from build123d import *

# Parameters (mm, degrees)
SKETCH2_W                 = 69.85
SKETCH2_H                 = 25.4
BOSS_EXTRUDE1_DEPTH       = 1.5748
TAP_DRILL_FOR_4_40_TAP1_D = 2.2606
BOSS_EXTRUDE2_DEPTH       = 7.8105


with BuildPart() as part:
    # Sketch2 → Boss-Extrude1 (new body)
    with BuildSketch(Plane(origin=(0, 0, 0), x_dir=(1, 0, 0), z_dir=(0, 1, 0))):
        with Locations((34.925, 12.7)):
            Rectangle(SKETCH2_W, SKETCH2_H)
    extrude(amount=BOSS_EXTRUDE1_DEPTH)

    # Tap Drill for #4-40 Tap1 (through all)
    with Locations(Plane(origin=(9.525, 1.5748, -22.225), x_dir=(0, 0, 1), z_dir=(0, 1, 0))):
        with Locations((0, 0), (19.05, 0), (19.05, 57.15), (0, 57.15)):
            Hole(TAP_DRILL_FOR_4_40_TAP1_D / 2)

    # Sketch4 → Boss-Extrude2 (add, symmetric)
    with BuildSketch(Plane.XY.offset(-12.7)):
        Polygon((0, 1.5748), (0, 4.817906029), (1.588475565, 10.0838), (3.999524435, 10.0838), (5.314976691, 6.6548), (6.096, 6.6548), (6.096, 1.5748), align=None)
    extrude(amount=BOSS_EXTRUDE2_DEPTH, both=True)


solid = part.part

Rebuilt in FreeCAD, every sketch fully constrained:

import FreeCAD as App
import Part
import Sketcher

V = App.Vector
Q = App.Units.Quantity


def add_polygon(sketch, points):
    """Adds a closed chain of lines whose ends are joined by coincident constraints."""
    first, n = sketch.GeometryCount, len(points)
    for a, b in zip(points, points[1:] + points[:1]):
        sketch.addGeometry(Part.LineSegment(App.Vector(*a, 0), App.Vector(*b, 0)), False)
    for i in range(n):
        sketch.addConstraint(Sketcher.Constraint("Coincident", first + i, 2, first + (i + 1) % n, 1))

doc = App.newDocument("Part")
body = doc.addObject("PartDesign::Body", "Body")

sketch1 = body.newObject("Sketcher::SketchObject", "Sketch")
sketch1.AttachmentSupport = (doc.getObject("XZ_Plane"), [""])
sketch1.MapMode = "FlatFace"
add_polygon(sketch1, [(0, -25.4), (0, 0), (69.85, 0), (69.85, -25.4)])
sketch1.addConstraint([
    Sketcher.Constraint("Vertical", 0),
    Sketcher.Constraint("Horizontal", 1),
    Sketcher.Constraint("Vertical", 2),
    Sketcher.Constraint("Horizontal", 3),
    Sketcher.Constraint("Coincident", 0, 2, -1, 1),
    Sketcher.Constraint("DistanceY", 0, 1, 0, 2, Q("1 in")),
    Sketcher.Constraint("DistanceX", 1, 1, 1, 2, Q("2.75 in")),
])
pad1 = body.newObject("PartDesign::Pad", "Pad")
pad1.Profile = sketch1
pad1.Length = Q("0.062 in")
pad1.Reversed = True

sketch2 = body.newObject("Sketcher::SketchObject", "Sketch001")
sketch2.AttachmentSupport = (doc.getObject("XZ_Plane"), [""])
sketch2.MapMode = "FlatFace"
sketch2.AttachmentOffset = App.Placement(V(0, 0, -0.062 * 25.4), App.Rotation())
sketch2.addGeometry([
    Part.Circle(V(9.525, -22.225, 0), V(0, 0, 1), 1.1303),
    Part.Circle(V(9.525, -3.175, 0), V(0, 0, 1), 1.1303),
    Part.Circle(V(66.675, -3.175, 0), V(0, 0, 1), 1.1303),
    Part.Circle(V(66.675, -22.225, 0), V(0, 0, 1), 1.1303),
], False)
sketch2.addConstraint([
    Sketcher.Constraint("Equal", 0, 1),
    Sketcher.Constraint("Equal", 1, 2),
    Sketcher.Constraint("Equal", 2, 3),
    Sketcher.Constraint("Horizontal", 1, 3, 2, 3),
    Sketcher.Constraint("Horizontal", 0, 3, 3, 3),
    Sketcher.Constraint("Vertical", 0, 3, 1, 3),
    Sketcher.Constraint("Vertical", 2, 3, 3, 3),
    Sketcher.Constraint("Diameter", 0, Q("0.089 in")),
    Sketcher.Constraint("DistanceY", 0, 3, 1, 3, Q("0.75 in")),
    Sketcher.Constraint("DistanceX", 1, 3, 2, 3, Q("2.25 in")),
    Sketcher.Constraint("DistanceX", -1, 1, 0, 3, Q("0.375 in")),
    Sketcher.Constraint("DistanceY", 0, 3, -1, 1, Q("0.875 in")),
])
doc.recompute()
hole = body.newObject("PartDesign::Hole", "Hole")
hole.Profile = sketch2
hole.ThreadType = "None"
hole.Diameter = Q("0.089 in")
hole.DepthType = "ThroughAll"
hole.Reversed = True

sketch3 = body.newObject("Sketcher::SketchObject", "Sketch002")
sketch3.AttachmentSupport = (doc.getObject("XY_Plane"), [""])
sketch3.MapMode = "FlatFace"
sketch3.AttachmentOffset = App.Placement(V(0, 0, -0.5 * 25.4), App.Rotation())
add_polygon(sketch3, [(0, 4.817906), (0, 1.5748), (6.096, 1.5748), (6.096, 6.6548), (5.314977, 6.6548), (3.999524, 10.0838), (1.588476, 10.0838)])
sketch3.addConstraint([
    Sketcher.Constraint("Vertical", 0),
    Sketcher.Constraint("Horizontal", 1),
    Sketcher.Constraint("Vertical", 2),
    Sketcher.Constraint("Horizontal", 3),
    Sketcher.Constraint("Horizontal", 5),
    Sketcher.Constraint("PointOnObject", 0, 2, -2),
    Sketcher.Constraint("DistanceY", 2, 1, 2, 2, Q("0.2 in")),
    Sketcher.Constraint("DistanceX", 1, 1, 1, 2, Q("0.24 in")),
    Sketcher.Constraint("DistanceY", -1, 1, 0, 2, Q("0.062 in")),
    Sketcher.Constraint("DistanceY", -1, 1, 4, 2, Q("0.397 in")),
    Sketcher.Constraint("DistanceX", 5, 2, 5, 1, Q("2.411049 mm")),
    Sketcher.Constraint("DistanceX", 5, 2, 3, 2, Q("3.726501 mm")),
    Sketcher.Constraint("DistanceX", 3, 2, 3, 1, Q("0.781023 mm")),
    Sketcher.Constraint("DistanceY", 0, 2, 0, 1, Q("3.243106 mm")),
])
pad2 = body.newObject("PartDesign::Pad", "Pad001")
pad2.Profile = sketch3
pad2.Length = Q("0.615 in")
pad2.Midplane = True

doc.recompute()
